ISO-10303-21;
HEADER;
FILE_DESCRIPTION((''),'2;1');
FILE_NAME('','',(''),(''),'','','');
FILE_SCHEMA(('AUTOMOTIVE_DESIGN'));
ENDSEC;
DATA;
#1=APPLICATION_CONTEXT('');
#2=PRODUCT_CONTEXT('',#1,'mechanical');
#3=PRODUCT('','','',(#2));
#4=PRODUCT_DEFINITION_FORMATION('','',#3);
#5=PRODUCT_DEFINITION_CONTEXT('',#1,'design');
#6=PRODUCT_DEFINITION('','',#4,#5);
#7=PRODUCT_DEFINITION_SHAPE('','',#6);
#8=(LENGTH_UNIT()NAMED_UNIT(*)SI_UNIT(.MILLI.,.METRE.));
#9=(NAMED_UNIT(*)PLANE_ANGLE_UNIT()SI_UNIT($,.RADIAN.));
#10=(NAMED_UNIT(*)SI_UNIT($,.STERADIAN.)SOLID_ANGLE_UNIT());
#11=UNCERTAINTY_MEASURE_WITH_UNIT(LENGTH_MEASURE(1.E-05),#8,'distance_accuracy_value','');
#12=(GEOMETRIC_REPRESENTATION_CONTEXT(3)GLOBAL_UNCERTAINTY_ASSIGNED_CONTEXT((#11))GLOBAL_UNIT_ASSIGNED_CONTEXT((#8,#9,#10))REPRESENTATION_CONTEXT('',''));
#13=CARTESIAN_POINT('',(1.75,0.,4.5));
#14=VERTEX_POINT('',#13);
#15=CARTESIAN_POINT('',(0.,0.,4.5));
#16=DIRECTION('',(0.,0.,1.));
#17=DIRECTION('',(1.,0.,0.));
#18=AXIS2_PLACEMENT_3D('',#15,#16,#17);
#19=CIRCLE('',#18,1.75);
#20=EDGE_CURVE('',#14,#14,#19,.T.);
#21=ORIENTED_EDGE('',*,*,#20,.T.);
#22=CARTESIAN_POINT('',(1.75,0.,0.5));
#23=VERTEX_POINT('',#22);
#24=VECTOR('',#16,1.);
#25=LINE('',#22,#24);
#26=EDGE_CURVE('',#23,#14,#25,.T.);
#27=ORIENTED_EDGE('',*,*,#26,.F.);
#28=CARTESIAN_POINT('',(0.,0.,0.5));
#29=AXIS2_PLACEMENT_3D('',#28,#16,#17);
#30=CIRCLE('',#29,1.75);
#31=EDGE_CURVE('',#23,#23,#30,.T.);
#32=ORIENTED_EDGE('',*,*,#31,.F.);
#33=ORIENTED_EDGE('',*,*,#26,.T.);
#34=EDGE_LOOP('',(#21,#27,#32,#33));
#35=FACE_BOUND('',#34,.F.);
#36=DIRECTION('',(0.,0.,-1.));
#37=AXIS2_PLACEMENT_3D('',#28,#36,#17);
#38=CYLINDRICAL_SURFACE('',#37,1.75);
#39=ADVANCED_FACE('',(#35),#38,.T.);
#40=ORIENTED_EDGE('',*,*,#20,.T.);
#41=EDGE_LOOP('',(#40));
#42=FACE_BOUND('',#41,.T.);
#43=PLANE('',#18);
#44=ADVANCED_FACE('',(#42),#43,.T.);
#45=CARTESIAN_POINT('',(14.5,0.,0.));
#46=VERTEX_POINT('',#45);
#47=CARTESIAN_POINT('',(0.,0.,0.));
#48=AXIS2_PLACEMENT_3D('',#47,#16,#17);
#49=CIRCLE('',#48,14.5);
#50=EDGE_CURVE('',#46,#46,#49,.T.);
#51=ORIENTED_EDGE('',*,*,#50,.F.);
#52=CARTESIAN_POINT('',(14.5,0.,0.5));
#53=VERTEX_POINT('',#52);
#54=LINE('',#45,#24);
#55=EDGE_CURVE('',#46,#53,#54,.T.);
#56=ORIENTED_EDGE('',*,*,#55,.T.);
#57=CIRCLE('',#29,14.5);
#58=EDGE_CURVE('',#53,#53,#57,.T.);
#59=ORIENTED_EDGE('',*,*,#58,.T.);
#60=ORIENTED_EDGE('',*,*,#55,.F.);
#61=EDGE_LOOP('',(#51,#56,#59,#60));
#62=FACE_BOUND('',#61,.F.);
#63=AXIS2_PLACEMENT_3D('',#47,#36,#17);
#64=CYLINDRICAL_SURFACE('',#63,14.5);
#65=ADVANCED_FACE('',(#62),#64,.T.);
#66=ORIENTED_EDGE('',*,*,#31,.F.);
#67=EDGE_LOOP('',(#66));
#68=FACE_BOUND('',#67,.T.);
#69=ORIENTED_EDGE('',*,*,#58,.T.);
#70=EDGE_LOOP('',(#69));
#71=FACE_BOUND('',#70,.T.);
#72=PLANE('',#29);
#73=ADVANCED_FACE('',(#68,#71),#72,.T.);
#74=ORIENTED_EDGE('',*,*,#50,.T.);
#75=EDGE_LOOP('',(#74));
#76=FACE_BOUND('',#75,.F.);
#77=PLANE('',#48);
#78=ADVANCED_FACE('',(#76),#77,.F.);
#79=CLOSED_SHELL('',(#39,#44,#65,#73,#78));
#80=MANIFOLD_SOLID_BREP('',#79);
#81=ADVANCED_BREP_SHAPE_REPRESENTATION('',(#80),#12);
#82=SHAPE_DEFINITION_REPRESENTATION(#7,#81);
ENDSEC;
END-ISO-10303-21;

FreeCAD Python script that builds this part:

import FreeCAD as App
import Part
import Sketcher
from FreeCAD import Vector
Q = App.Units.Quantity

doc = App.newDocument("Part")
body = doc.addObject("PartDesign::Body", "Body")

# Sketch on XY plane
sketch1 = body.newObject("Sketcher::SketchObject", "Sketch")
sketch1.AttachmentSupport = (doc.getObject("XY_Plane"), [""])
sketch1.MapMode = "FlatFace"
sketch1.addGeometry(Part.Circle(Vector(0, 0, 0), Vector(0, 0, 1), 14), False)
sketch1.addConstraint(Sketcher.Constraint("Coincident", 0, 3, -1, 1))
sketch1.addConstraint(Sketcher.Constraint("Diameter", 0, Q("29 mm")))
pad1 = body.newObject("PartDesign::Pad", "Pad")
pad1.Profile = sketch1
pad1.Length = 0.5

# Sketch on XY plane
sketch2 = body.newObject("Sketcher::SketchObject", "Sketch001")
sketch2.AttachmentSupport = (doc.getObject("XY_Plane"), [""])
sketch2.MapMode = "FlatFace"
sketch2.AttachmentOffset = App.Placement(Vector(0, 0, 0.5), App.Rotation())
sketch2.addGeometry(Part.Circle(Vector(0, 0, 0), Vector(0, 0, 1), 1.8), False)
sketch2.addConstraint(Sketcher.Constraint("Coincident", 0, 3, -1, 1))
sketch2.addConstraint(Sketcher.Constraint("Diameter", 0, Q("3.5 mm")))
pad2 = body.newObject("PartDesign::Pad", "Pad001")
pad2.Profile = sketch2
pad2.Length = 4

doc.recompute()
